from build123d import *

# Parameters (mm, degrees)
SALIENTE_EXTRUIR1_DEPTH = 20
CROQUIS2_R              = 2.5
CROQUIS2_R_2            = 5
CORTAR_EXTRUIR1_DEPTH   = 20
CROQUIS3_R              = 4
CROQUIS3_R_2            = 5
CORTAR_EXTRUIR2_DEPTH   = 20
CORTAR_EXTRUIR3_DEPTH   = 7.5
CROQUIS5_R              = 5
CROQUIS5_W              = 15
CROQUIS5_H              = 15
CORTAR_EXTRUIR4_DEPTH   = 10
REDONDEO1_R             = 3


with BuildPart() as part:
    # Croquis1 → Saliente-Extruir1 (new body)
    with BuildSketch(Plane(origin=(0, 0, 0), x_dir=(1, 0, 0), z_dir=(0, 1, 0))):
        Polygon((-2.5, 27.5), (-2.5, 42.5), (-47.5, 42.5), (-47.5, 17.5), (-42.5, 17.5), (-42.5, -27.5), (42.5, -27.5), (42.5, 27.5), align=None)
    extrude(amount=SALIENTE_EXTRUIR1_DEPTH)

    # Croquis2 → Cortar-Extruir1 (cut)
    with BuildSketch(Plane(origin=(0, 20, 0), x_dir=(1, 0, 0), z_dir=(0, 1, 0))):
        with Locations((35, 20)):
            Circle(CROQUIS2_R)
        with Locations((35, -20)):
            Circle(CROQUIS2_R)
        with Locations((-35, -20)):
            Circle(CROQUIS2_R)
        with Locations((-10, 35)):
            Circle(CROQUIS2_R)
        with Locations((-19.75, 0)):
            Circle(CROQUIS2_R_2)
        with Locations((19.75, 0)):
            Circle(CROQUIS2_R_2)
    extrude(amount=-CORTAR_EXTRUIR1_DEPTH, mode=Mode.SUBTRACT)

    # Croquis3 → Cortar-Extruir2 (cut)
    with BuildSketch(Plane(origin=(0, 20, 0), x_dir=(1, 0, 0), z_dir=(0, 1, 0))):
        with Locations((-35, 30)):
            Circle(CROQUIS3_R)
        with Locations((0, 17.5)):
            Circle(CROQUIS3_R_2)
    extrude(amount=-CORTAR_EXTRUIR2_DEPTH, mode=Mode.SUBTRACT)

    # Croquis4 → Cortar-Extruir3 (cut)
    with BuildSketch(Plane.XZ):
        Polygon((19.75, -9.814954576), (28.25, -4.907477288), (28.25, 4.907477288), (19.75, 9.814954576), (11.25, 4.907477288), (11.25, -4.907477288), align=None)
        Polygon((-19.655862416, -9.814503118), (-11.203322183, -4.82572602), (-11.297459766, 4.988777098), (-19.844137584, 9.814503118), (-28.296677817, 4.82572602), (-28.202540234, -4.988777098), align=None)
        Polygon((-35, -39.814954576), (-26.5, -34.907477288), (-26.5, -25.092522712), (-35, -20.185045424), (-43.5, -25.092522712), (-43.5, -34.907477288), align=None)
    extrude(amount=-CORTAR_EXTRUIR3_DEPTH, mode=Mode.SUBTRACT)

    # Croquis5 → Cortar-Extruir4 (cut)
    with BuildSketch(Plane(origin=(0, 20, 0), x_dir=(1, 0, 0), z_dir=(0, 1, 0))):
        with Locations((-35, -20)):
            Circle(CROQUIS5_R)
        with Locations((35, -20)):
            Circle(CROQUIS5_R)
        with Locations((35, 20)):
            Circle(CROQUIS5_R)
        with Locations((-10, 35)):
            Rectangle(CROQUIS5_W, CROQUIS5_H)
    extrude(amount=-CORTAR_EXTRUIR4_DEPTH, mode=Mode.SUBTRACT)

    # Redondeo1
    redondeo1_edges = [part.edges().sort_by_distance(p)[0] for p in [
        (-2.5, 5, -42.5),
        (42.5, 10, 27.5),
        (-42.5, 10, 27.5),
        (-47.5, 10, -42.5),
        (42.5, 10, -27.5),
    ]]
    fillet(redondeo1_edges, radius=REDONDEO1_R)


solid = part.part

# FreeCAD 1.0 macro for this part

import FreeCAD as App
import Part
import Sketcher

V = App.Vector


def edges_at(feature, points):
    """Names of the edges that pass closest to the given points."""
    edges = feature.Shape.Edges
    near = lambda p: min(range(len(edges)), key=lambda i: edges[i].distToShape(Part.Vertex(*p))[0])
    return sorted({f"Edge{near(p) + 1}" for p in points})


def add_polygon(sketch, points):
    """Adds a closed chain of lines whose ends are joined by coincident constraints."""
    first, n = sketch.GeometryCount, len(points)
    for a, b in zip(points, points[1:] + points[:1]):
        sketch.addGeometry(Part.LineSegment(App.Vector(*a, 0), App.Vector(*b, 0)), False)
    for i in range(n):
        sketch.addConstraint(Sketcher.Constraint("Coincident", first + i, 2, first + (i + 1) % n, 1))

doc = App.newDocument("Part")
body = doc.addObject("PartDesign::Body", "Body")

sketch1 = doc.addObject("Sketcher::SketchObject", "Sketch")
body.addObject(sketch1)
sketch1.AttachmentSupport = (doc.XZ_Plane, [""])
sketch1.MapMode = "FlatFace"
add_polygon(sketch1, [(-2, -28), (-2, -42), (-48, -42), (-48, -18), (-42, -18), (-42, 28), (42, 28), (42, -28)])
sketch1.addConstraint(Sketcher.Constraint("Vertical", 0))
sketch1.addConstraint(Sketcher.Constraint("Horizontal", 1))
sketch1.addConstraint(Sketcher.Constraint("Vertical", 2))
sketch1.addConstraint(Sketcher.Constraint("Horizontal", 3))
sketch1.addConstraint(Sketcher.Constraint("Vertical", 4))
sketch1.addConstraint(Sketcher.Constraint("Horizontal", 5))
sketch1.addConstraint(Sketcher.Constraint("Vertical", 6))
sketch1.addConstraint(Sketcher.Constraint("Horizontal", 7))
sketch1.addConstraint(Sketcher.Constraint("Symmetric", 4, 2, 6, 2, -1, 1))
sketch1.addConstraint(Sketcher.Constraint("Equal", 1, 7))
sketch1.addConstraint(Sketcher.Constraint("Equal", 7, 4))
sketch1.addConstraint(Sketcher.Constraint("DistanceX", 1, 2, 1, 1, 45.0))
sketch1.addConstraint(Sketcher.Constraint("DistanceX", 3, 1, 3, 2, 5.0))
sketch1.addConstraint(Sketcher.Constraint("DistanceY", 0, 2, 0, 1, 15.0))
sketch1.addConstraint(Sketcher.Constraint("DistanceY", 2, 1, 2, 2, 25.0))
pad1 = doc.addObject("PartDesign::Pad", "Pad")
body.addObject(pad1)
pad1.Profile = sketch1
pad1.Length = 20
pad1.Reversed = True

sketch2 = doc.addObject("Sketcher::SketchObject", "Sketch001")
body.addObject(sketch2)
sketch2.AttachmentSupport = (doc.XZ_Plane, [""])
sketch2.MapMode = "FlatFace"
sketch2.AttachmentOffset = App.Placement(V(0, 0, -20), App.Rotation())
sketch2.addGeometry(Part.Circle(V(35, -20, 0), V(0, 0, 1), 2.5), False)
sketch2.addGeometry(Part.Circle(V(35, 20, 0), V(0, 0, 1), 2.5), False)
sketch2.addGeometry(Part.Circle(V(-35, 20, 0), V(0, 0, 1), 2.5), False)
sketch2.addGeometry(Part.Circle(V(-10, -35, 0), V(0, 0, 1), 2.5), False)
sketch2.addGeometry(Part.Circle(V(-19.8, 0, 0), V(0, 0, 1), 5), False)
sketch2.addGeometry(Part.Circle(V(19.8, 0, 0), V(0, 0, 1), 5), False)
sketch2.addConstraint(Sketcher.Constraint("Equal", 0, 1))
sketch2.addConstraint(Sketcher.Constraint("Equal", 1, 2))
sketch2.addConstraint(Sketcher.Constraint("Equal", 2, 3))
sketch2.addConstraint(Sketcher.Constraint("Equal", 4, 5))
sketch2.addConstraint(Sketcher.Constraint("Symmetric", 0, 3, 2, 3, -1, 1))
sketch2.addConstraint(Sketcher.Constraint("Symmetric", 4, 3, 5, 3, -1, 1))
sketch2.addConstraint(Sketcher.Constraint("Symmetric", 1, 3, 2, 3, -2))
sketch2.addConstraint(Sketcher.Constraint("PointOnObject", 4, 3, -1))
sketch2.addConstraint(Sketcher.Constraint("Diameter", 0, 5.0))
sketch2.addConstraint(Sketcher.Constraint("Diameter", 4, 10.0))
sketch2.addConstraint(Sketcher.Constraint("DistanceX", -1, 1, 0, 3, 35.0))
sketch2.addConstraint(Sketcher.Constraint("DistanceY", 0, 3, -1, 1, 20.0))
sketch2.addConstraint(Sketcher.Constraint("DistanceX", 3, 3, -1, 1, 10.0))
sketch2.addConstraint(Sketcher.Constraint("DistanceY", 3, 3, -1, 1, 35.0))
sketch2.addConstraint(Sketcher.Constraint("DistanceX", 4, 3, 5, 3, 39.5))
pocket1 = doc.addObject("PartDesign::Pocket", "Pocket")
body.addObject(pocket1)
pocket1.Profile = sketch2
pocket1.Length = 20
pocket1.Reversed = True

sketch3 = doc.addObject("Sketcher::SketchObject", "Sketch002")
body.addObject(sketch3)
sketch3.AttachmentSupport = (doc.XZ_Plane, [""])
sketch3.MapMode = "FlatFace"
sketch3.AttachmentOffset = App.Placement(V(0, 0, -20), App.Rotation())
sketch3.addGeometry(Part.Circle(V(-35, -30, 0), V(0, 0, 1), 4), False)
sketch3.addGeometry(Part.Circle(V(0, -17.5, 0), V(0, 0, 1), 5), False)
sketch3.addConstraint(Sketcher.Constraint("PointOnObject", 1, 3, -2))
sketch3.addConstraint(Sketcher.Constraint("Diameter", 0, 8.0))
sketch3.addConstraint(Sketcher.Constraint("Diameter", 1, 10.0))
sketch3.addConstraint(Sketcher.Constraint("DistanceX", 0, 3, -1, 1, 35.0))
sketch3.addConstraint(Sketcher.Constraint("DistanceY", 0, 3, -1, 1, 30.0))
sketch3.addConstraint(Sketcher.Constraint("DistanceY", 1, 3, -1, 1, 17.5))
pocket2 = doc.addObject("PartDesign::Pocket", "Pocket001")
body.addObject(pocket2)
pocket2.Profile = sketch3
pocket2.Length = 20
pocket2.Reversed = True

sketch4 = doc.addObject("Sketcher::SketchObject", "Sketch003")
body.addObject(sketch4)
sketch4.AttachmentSupport = (doc.XZ_Plane, [""])
sketch4.MapMode = "FlatFace"
add_polygon(sketch4, [(19.75, -9.814955), (28.25, -4.907477), (28.25, 4.907477), (19.75, 9.814955), (11.25, 4.907477), (11.25, -4.907477)])
add_polygon(sketch4, [(-19.655862, -9.814503), (-11.203322, -4.825726), (-11.29746, 4.988777), (-19.844138, 9.814503), (-28.296678, 4.825726), (-28.20254, -4.988777)])
add_polygon(sketch4, [(-35, -39.814955), (-26.5, -34.907477), (-26.5, -25.092523), (-35, -20.185045), (-43.5, -25.092523), (-43.5, -34.907477)])
sketch4.addConstraint(Sketcher.Constraint("Vertical", 1))
sketch4.addConstraint(Sketcher.Constraint("Vertical", 4))
sketch4.addConstraint(Sketcher.Constraint("Vertical", 13))
sketch4.addConstraint(Sketcher.Constraint("Vertical", 16))
sketch4.addConstraint(Sketcher.Constraint("DistanceX", 14, 2, -1, 1, 35.0))
sketch4.addConstraint(Sketcher.Constraint("DistanceX", 17, 2, -1, 1, 35.0))
sketch4.addConstraint(Sketcher.Constraint("DistanceX", 3, 2, 1, 2, 17.0))
sketch4.addConstraint(Sketcher.Constraint("DistanceX", 15, 2, 13, 2, 17.0))
sketch4.addConstraint(Sketcher.Constraint("DistanceX", 12, 2, -1, 1, 26.5))
sketch4.addConstraint(Sketcher.Constraint("DistanceX", 2, 2, 1, 2, 8.5))
sketch4.addConstraint(Sketcher.Constraint("DistanceX", 5, 2, 0, 2, 8.5))
sketch4.addConstraint(Sketcher.Constraint("DistanceX", -1, 1, 0, 2, 28.25))
sketch4.addConstraint(Sketcher.Constraint("DistanceY", 3, 2, 7, 2, 0.0813))
sketch4.addConstraint(Sketcher.Constraint("DistanceY", 10, 2, 4, 2, 0.0813))
sketch4.addConstraint(Sketcher.Constraint("DistanceY", 12, 2, 10, 2, 29.9187))
sketch4.addConstraint(Sketcher.Constraint("DistanceY", 16, 2, 10, 2, 29.9187))
sketch4.addConstraint(Sketcher.Constraint("DistanceY", 1, 1, 1, 2, 9.814955))
sketch4.addConstraint(Sketcher.Constraint("DistanceY", 4, 2, 4, 1, 9.814955))
sketch4.addConstraint(Sketcher.Constraint("DistanceY", 13, 1, 13, 2, 9.814955))
sketch4.addConstraint(Sketcher.Constraint("DistanceY", 16, 2, 16, 1, 9.814955))
sketch4.addConstraint(Sketcher.Constraint("DistanceX", 7, 2, -1, 1, 11.29746))
sketch4.addConstraint(Sketcher.Constraint("DistanceX", 10, 2, -1, 1, 28.20254))
sketch4.addConstraint(Sketcher.Constraint("DistanceY", 0, 2, 2, 2, 14.722432))
sketch4.addConstraint(Sketcher.Constraint("DistanceY", 4, 2, 2, 2, 14.722432))
sketch4.addConstraint(Sketcher.Constraint("DistanceY", 5, 2, 1, 2, 14.722432))
sketch4.addConstraint(Sketcher.Constraint("DistanceY", 4, 2, 6, 2, 0.081751))
sketch4.addConstraint(Sketcher.Constraint("DistanceY", 6, 2, 8, 2, 14.640229))
sketch4.addConstraint(Sketcher.Constraint("DistanceX", 9, 2, 8, 2, 8.45254))
sketch4.addConstraint(Sketcher.Constraint("DistanceX", 9, 2, 7, 2, 16.999218))
sketch4.addConstraint(Sketcher.Constraint("DistanceY", 9, 2, 7, 2, 0.163051))
sketch4.addConstraint(Sketcher.Constraint("DistanceX", 10, 2, 6, 2, 16.999218))
sketch4.addConstraint(Sketcher.Constraint("DistanceX", 11, 2, 6, 2, 8.45254))
sketch4.addConstraint(Sketcher.Constraint("DistanceY", 11, 2, 9, 2, 14.640229))
sketch4.addConstraint(Sketcher.Constraint("DistanceY", 14, 2, 10, 2, 15.196268))
sketch4.addConstraint(Sketcher.Constraint("DistanceY", 17, 2, 13, 2, 14.722432))
sketch4.addConstraint(Sketcher.Constraint("DistanceY", 0, 2, -1, 1, 4.907477))
pocket3 = doc.addObject("PartDesign::Pocket", "Pocket002")
body.addObject(pocket3)
pocket3.Profile = sketch4
pocket3.Length = 7.5

sketch5 = doc.addObject("Sketcher::SketchObject", "Sketch004")
body.addObject(sketch5)
sketch5.AttachmentSupport = (doc.XZ_Plane, [""])
sketch5.MapMode = "FlatFace"
sketch5.AttachmentOffset = App.Placement(V(0, 0, -20), App.Rotation())
sketch5.addGeometry(Part.Circle(V(-35, 20, 0), V(0, 0, 1), 5), False)
sketch5.addGeometry(Part.Circle(V(35, 20, 0), V(0, 0, 1), 5), False)
sketch5.addGeometry(Part.Circle(V(35, -20, 0), V(0, 0, 1), 5), False)
add_polygon(sketch5, [(-18, -42), (-18, -28), (-2, -28), (-2, -42)])
sketch5.addConstraint(Sketcher.Constraint("Vertical", 3))
sketch5.addConstraint(Sketcher.Constraint("Horizontal", 4))
sketch5.addConstraint(Sketcher.Constraint("Vertical", 5))
sketch5.addConstraint(Sketcher.Constraint("Horizontal", 6))
sketch5.addConstraint(Sketcher.Constraint("Equal", 0, 1))
sketch5.addConstraint(Sketcher.Constraint("Equal", 1, 2))
sketch5.addConstraint(Sketcher.Constraint("Symmetric", 0, 3, 2, 3, -1, 1))
sketch5.addConstraint(Sketcher.Constraint("Symmetric", 0, 3, 1, 3, -2))
sketch5.addConstraint(Sketcher.Constraint("Equal", 6, 3))
sketch5.addConstraint(Sketcher.Constraint("Diameter", 0, 10.0))
sketch5.addConstraint(Sketcher.Constraint("DistanceX", 4, 1, 4, 2, 15.0))
sketch5.addConstraint(Sketcher.Constraint("DistanceX", 0, 3, -1, 1, 35.0))
sketch5.addConstraint(Sketcher.Constraint("DistanceY", -1, 1, 0, 3, 20.0))
sketch5.addConstraint(Sketcher.Constraint("DistanceX", 3, 2, -1, 1, 17.5))
sketch5.addConstraint(Sketcher.Constraint("DistanceY", 3, 2, -1, 1, 27.5))
pocket4 = doc.addObject("PartDesign::Pocket", "Pocket003")
body.addObject(pocket4)
pocket4.Profile = sketch5
pocket4.Length = 10
pocket4.Reversed = True
doc.recompute()

fillet = doc.addObject("PartDesign::Fillet", "Fillet")
body.addObject(fillet)
fillet.Base = (pocket4, edges_at(pocket4, [
    (-2.5, 5, -42.5),
    (42.5, 10, 27.5),
    (-42.5, 10, 27.5),
    (-47.5, 10, -42.5),
    (42.5, 10, -27.5),
]))
fillet.Radius = 3

doc.recompute()
